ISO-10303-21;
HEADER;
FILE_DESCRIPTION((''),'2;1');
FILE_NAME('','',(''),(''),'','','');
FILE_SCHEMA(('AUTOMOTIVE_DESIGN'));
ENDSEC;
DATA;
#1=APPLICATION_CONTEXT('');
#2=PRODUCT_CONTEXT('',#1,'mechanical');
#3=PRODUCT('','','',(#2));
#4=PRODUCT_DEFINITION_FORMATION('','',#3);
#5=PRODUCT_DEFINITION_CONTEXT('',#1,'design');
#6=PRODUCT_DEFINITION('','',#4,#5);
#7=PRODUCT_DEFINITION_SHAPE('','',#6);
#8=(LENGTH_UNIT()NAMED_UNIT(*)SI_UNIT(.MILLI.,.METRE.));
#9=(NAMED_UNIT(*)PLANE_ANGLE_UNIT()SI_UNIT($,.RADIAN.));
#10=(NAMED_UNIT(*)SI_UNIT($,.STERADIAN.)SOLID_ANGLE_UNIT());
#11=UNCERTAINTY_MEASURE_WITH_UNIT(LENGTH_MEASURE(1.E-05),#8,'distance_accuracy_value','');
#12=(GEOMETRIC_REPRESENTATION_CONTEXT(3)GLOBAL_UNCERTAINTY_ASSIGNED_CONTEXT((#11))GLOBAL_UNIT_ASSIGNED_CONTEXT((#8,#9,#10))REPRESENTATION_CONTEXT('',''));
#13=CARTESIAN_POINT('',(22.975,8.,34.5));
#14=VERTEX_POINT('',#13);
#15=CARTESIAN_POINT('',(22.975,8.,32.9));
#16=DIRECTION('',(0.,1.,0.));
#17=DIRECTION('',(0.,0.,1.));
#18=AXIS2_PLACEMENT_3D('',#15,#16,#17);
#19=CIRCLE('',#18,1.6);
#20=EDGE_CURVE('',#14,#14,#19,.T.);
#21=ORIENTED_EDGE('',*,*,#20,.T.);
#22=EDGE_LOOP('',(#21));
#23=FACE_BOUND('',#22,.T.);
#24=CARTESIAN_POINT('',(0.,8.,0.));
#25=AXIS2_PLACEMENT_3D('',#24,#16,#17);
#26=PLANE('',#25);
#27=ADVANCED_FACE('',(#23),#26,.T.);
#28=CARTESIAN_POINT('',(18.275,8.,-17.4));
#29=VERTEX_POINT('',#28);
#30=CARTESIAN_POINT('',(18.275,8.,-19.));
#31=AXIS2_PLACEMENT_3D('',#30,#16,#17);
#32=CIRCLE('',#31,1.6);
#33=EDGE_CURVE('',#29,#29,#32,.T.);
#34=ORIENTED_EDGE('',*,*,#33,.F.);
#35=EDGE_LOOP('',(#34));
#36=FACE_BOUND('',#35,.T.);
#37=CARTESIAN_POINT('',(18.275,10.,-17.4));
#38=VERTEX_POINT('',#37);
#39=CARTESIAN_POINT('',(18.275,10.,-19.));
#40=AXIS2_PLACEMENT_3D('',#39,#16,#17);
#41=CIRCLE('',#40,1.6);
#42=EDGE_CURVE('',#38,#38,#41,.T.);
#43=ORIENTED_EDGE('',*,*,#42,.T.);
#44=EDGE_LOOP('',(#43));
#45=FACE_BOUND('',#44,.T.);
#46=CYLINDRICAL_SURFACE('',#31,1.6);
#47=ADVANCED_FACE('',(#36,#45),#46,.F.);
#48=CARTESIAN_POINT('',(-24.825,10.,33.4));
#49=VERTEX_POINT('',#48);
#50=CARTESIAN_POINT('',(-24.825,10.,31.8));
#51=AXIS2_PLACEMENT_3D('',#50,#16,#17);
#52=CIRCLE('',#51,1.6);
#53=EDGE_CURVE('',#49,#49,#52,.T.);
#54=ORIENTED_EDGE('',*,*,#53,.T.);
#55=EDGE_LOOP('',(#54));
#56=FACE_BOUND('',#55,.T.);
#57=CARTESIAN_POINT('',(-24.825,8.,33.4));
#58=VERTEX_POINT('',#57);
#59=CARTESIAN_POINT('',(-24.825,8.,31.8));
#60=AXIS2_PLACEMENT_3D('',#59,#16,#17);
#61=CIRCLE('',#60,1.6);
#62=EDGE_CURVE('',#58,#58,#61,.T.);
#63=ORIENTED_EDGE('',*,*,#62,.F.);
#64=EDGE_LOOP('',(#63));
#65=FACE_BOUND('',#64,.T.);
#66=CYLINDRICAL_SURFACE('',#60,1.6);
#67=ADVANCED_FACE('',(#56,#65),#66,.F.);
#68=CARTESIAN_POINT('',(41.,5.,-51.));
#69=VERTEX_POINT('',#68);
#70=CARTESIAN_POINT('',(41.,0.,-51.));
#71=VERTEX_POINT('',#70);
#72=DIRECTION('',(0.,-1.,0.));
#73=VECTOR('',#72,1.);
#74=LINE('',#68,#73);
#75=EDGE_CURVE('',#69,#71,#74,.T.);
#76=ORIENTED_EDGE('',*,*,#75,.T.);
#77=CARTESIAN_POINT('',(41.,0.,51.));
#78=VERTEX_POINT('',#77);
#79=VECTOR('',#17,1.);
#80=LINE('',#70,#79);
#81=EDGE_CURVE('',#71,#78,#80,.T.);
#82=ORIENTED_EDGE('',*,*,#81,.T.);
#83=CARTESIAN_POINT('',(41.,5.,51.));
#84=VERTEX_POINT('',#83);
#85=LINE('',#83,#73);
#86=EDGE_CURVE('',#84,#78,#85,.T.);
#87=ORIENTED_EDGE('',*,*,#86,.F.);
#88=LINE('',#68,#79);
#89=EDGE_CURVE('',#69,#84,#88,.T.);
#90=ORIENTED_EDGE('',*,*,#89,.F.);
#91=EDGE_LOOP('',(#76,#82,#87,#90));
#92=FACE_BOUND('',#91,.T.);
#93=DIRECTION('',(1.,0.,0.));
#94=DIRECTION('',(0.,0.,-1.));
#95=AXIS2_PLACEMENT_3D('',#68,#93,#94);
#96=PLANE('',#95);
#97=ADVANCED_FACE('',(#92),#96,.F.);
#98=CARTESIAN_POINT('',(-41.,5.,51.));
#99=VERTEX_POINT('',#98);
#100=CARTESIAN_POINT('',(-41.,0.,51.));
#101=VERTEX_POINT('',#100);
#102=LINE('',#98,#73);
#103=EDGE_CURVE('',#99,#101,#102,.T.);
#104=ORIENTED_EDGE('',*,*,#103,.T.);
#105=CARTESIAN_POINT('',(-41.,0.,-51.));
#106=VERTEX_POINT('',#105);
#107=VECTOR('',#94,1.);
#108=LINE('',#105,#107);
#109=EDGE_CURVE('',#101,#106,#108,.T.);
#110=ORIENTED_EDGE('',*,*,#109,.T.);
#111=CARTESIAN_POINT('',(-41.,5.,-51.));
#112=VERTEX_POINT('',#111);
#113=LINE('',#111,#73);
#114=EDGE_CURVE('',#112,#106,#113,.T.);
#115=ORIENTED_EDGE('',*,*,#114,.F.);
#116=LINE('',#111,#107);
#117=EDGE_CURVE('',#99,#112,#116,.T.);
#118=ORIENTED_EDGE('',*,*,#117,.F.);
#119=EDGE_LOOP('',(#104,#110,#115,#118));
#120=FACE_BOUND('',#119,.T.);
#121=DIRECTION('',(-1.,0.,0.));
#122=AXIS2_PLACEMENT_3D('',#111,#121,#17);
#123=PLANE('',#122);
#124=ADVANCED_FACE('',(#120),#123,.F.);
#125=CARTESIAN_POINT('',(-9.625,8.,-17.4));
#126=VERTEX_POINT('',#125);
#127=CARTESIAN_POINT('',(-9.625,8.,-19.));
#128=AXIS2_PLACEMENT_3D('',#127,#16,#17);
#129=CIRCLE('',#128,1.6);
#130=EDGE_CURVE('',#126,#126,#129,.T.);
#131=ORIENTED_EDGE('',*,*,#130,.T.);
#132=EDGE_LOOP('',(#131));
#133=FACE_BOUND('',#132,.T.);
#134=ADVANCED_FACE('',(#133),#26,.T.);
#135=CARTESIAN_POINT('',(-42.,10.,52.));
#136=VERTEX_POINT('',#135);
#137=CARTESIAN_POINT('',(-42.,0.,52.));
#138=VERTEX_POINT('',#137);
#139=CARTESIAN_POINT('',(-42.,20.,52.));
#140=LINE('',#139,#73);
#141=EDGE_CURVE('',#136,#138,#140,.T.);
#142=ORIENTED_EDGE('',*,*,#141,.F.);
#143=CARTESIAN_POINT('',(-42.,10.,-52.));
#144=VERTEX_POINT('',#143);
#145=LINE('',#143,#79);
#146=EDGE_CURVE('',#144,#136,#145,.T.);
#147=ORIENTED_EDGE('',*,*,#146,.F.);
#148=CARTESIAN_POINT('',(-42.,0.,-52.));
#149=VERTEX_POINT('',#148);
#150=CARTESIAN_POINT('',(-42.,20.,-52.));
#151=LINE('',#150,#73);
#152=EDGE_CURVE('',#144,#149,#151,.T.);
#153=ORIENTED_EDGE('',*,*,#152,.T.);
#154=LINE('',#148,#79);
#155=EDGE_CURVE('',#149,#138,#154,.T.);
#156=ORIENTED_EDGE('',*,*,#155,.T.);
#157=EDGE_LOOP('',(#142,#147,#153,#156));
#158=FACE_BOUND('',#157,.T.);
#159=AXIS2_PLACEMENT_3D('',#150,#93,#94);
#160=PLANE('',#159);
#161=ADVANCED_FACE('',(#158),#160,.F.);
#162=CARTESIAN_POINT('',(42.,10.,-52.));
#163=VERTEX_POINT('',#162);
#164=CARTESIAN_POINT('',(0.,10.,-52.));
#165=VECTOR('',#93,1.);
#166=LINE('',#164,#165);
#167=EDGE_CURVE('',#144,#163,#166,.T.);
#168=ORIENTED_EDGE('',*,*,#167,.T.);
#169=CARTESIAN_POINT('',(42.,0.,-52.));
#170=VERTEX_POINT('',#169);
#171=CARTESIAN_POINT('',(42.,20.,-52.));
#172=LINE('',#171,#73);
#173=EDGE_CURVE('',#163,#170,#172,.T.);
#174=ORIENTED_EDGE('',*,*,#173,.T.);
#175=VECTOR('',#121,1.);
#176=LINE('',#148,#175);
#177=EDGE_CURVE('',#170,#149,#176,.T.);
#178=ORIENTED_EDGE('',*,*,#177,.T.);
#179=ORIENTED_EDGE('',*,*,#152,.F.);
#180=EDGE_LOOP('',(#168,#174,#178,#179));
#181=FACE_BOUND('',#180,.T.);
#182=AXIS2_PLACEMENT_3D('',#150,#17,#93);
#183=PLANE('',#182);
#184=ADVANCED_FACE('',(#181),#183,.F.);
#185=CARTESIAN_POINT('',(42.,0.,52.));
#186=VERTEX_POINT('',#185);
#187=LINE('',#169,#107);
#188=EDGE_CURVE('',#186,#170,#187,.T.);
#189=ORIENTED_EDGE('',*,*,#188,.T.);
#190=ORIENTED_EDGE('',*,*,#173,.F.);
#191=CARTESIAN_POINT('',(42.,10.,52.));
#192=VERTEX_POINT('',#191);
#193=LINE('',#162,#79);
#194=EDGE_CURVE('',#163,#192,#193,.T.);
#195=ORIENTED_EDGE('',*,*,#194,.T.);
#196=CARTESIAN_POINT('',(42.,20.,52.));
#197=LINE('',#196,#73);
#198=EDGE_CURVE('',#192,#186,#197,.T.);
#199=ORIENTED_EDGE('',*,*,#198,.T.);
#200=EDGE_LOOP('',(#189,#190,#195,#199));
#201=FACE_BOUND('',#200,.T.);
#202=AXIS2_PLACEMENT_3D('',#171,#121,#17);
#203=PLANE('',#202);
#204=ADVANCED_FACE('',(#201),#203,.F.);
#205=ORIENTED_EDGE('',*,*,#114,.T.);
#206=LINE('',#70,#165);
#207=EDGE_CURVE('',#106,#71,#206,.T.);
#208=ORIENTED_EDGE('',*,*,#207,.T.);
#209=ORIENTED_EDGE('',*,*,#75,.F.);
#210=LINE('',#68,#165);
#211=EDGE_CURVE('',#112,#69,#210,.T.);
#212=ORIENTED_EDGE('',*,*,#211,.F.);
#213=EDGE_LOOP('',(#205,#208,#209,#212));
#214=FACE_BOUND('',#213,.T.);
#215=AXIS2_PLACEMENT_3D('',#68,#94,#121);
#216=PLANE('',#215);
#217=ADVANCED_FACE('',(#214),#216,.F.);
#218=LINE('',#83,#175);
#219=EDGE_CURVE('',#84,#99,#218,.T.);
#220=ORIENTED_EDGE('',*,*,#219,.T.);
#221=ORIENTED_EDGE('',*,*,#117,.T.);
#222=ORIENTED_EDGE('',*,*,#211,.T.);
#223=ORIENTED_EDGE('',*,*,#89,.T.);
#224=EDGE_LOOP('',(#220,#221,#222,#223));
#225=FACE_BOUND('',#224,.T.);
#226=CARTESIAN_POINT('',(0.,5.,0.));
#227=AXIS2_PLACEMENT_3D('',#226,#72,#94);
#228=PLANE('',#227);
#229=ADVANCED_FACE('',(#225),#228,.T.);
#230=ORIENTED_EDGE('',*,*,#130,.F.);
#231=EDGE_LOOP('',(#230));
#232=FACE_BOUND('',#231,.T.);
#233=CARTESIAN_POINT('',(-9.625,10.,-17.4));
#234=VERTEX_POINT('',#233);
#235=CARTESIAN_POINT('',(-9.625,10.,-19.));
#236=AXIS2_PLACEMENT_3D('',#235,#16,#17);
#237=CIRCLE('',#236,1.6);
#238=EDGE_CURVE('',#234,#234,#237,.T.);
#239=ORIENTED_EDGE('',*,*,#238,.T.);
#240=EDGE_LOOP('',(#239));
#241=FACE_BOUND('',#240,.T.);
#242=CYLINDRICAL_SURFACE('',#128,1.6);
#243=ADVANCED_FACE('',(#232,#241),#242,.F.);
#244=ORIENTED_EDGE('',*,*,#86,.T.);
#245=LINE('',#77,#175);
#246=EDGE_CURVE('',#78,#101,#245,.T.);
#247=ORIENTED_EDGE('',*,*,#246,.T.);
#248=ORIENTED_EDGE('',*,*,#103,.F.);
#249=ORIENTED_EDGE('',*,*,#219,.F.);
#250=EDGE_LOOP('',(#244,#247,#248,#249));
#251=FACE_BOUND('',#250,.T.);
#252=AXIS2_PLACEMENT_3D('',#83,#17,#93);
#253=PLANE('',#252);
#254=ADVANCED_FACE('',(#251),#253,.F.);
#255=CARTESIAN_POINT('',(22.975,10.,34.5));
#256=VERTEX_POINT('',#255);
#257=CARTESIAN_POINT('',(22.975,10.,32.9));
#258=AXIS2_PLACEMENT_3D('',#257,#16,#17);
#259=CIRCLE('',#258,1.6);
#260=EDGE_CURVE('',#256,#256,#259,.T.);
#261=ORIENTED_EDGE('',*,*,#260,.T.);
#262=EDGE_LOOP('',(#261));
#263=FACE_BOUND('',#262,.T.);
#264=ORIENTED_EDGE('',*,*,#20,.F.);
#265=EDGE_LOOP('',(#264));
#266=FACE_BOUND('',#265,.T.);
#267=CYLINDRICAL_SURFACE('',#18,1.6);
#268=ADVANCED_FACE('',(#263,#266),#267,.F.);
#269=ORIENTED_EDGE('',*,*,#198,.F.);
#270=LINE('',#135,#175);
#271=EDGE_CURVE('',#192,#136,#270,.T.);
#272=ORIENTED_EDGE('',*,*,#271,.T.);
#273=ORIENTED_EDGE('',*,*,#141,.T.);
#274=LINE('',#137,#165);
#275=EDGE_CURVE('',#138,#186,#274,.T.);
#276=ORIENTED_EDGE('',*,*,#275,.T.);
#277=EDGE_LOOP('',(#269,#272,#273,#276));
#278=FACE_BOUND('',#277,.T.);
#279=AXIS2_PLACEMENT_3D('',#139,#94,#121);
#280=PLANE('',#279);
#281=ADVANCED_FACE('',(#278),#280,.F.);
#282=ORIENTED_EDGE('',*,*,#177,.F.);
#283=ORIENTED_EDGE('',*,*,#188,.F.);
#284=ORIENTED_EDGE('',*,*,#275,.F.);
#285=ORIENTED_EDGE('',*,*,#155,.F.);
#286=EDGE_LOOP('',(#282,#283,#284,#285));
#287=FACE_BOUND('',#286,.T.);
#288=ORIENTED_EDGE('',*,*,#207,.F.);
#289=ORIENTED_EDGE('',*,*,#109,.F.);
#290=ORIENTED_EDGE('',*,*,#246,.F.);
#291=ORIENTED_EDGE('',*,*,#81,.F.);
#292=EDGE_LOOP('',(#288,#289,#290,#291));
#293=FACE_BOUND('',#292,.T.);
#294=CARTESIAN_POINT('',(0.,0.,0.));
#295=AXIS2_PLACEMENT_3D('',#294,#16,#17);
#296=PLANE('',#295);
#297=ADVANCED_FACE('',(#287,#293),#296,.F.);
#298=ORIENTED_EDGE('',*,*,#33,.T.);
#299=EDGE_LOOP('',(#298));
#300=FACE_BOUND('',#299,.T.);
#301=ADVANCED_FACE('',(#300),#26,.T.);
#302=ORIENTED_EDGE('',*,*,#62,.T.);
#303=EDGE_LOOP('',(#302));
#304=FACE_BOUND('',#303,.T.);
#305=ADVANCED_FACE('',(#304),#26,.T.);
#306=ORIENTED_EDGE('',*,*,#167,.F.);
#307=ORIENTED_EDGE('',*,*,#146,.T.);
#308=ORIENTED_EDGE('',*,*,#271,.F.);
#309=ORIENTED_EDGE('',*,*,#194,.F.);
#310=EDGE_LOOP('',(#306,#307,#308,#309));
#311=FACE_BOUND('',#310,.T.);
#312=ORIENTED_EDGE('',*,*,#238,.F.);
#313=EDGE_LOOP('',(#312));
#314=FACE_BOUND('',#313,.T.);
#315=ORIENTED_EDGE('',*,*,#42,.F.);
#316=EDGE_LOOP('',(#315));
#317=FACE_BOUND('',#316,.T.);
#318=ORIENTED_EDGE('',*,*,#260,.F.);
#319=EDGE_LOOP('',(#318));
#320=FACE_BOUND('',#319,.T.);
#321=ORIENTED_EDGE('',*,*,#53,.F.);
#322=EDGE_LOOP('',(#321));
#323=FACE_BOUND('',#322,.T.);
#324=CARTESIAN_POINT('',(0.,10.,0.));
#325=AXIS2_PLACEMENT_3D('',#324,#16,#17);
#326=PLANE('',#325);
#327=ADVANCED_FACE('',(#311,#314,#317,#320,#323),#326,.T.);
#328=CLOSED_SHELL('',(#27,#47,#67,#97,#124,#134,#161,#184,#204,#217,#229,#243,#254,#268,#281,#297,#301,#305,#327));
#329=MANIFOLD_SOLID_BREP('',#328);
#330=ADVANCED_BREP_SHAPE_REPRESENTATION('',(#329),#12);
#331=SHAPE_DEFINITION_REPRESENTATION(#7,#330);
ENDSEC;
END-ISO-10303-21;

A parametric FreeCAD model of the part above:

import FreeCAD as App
import Part
import Sketcher
Q = App.Units.Quantity


def add_polygon(sketch, points):
    """Adds a closed chain of lines whose ends are joined by coincident constraints."""
    first, n = sketch.GeometryCount, len(points)
    for a, b in zip(points, points[1:] + points[:1]):
        sketch.addGeometry(Part.LineSegment(App.Vector(*a, 0), App.Vector(*b, 0)), False)
    for i in range(n):
        sketch.addConstraint(Sketcher.Constraint("Coincident", first + i, 2, first + (i + 1) % n, 1))

doc = App.newDocument("Part")
body = doc.addObject("PartDesign::Body", "Body")

sketch1 = body.newObject("Sketcher::SketchObject", "Sketch")
sketch1.AttachmentSupport = (doc.getObject("XZ_Plane"), [""])
sketch1.MapMode = "FlatFace"
add_polygon(sketch1, [(-42, -52), (-42, 52), (42, 52), (42, -52)])
sketch1.addConstraint(Sketcher.Constraint("Vertical", 0))
sketch1.addConstraint(Sketcher.Constraint("Horizontal", 1))
sketch1.addConstraint(Sketcher.Constraint("Vertical", 2))
sketch1.addConstraint(Sketcher.Constraint("Horizontal", 3))
sketch1.addConstraint(Sketcher.Constraint("Symmetric", 0, 2, 2, 2, -1, 1))
sketch1.addConstraint(Sketcher.Constraint("DistanceX", 1, 1, 1, 2, Q("84 mm")))
sketch1.addConstraint(Sketcher.Constraint("DistanceY", 0, 1, 0, 2, Q("104 mm")))
pad1 = body.newObject("PartDesign::Pad", "Pad")
pad1.Profile = sketch1
pad1.Length = 20
pad1.Reversed = True

sketch2 = body.newObject("Sketcher::SketchObject", "Sketch001")
sketch2.AttachmentSupport = (doc.getObject("XZ_Plane"), [""])
sketch2.MapMode = "FlatFace"
add_polygon(sketch2, [(41, -51), (41, 51), (-41, 51), (-41, -51)])
sketch2.addConstraint(Sketcher.Constraint("Vertical", 0))
sketch2.addConstraint(Sketcher.Constraint("Horizontal", 1))
sketch2.addConstraint(Sketcher.Constraint("Vertical", 2))
sketch2.addConstraint(Sketcher.Constraint("Horizontal", 3))
sketch2.addConstraint(Sketcher.Constraint("Symmetric", 0, 2, 2, 2, -1, 1))
sketch2.addConstraint(Sketcher.Constraint("DistanceX", 1, 2, 1, 1, Q("82 mm")))
sketch2.addConstraint(Sketcher.Constraint("DistanceY", 0, 1, 0, 2, Q("102 mm")))
pocket1 = body.newObject("PartDesign::Pocket", "Pocket")
pocket1.Profile = sketch2
pocket1.Length = 5

sketch3 = body.newObject("Sketcher::SketchObject", "Sketch002")
sketch3.AttachmentSupport = (doc.getObject("XZ_Plane"), [""])
sketch3.MapMode = "FlatFace"
sketch3.AttachmentOffset = App.Placement(App.Vector(0, 0, -20), App.Rotation())
add_polygon(sketch3, [(-37, -47), (-37, 47), (37, 47), (37, -47)])
sketch3.addConstraint(Sketcher.Constraint("Vertical", 0))
sketch3.addConstraint(Sketcher.Constraint("Horizontal", 1))
sketch3.addConstraint(Sketcher.Constraint("Vertical", 2))
sketch3.addConstraint(Sketcher.Constraint("Horizontal", 3))
sketch3.addConstraint(Sketcher.Constraint("Symmetric", 0, 2, 2, 2, -1, 1))
sketch3.addConstraint(Sketcher.Constraint("DistanceX", 1, 1, 1, 2, Q("74 mm")))
sketch3.addConstraint(Sketcher.Constraint("DistanceY", 0, 1, 0, 2, Q("94 mm")))
pocket2 = body.newObject("PartDesign::Pocket", "Pocket001")
pocket2.Profile = sketch3
pocket2.Length = 10
pocket2.Reversed = True

sketch4 = body.newObject("Sketcher::SketchObject", "Sketch003")
sketch4.AttachmentSupport = (doc.getObject("XY_Plane"), [""])
sketch4.MapMode = "FlatFace"
sketch4.AttachmentOffset = App.Placement(App.Vector(0, 0, -47), App.Rotation())
add_polygon(sketch4, [(-19, 20), (-19, 10), (19, 10), (19, 20)])
sketch4.addConstraint(Sketcher.Constraint("Vertical", 0))
sketch4.addConstraint(Sketcher.Constraint("Horizontal", 1))
sketch4.addConstraint(Sketcher.Constraint("Vertical", 2))
sketch4.addConstraint(Sketcher.Constraint("Horizontal", 3))
sketch4.addConstraint(Sketcher.Constraint("DistanceY", 0, 2, 0, 1, Q("10 mm")))
sketch4.addConstraint(Sketcher.Constraint("DistanceY", -1, 1, 0, 2, Q("10 mm")))
sketch4.addConstraint(Sketcher.Constraint("DistanceX", 1, 1, 1, 2, Q("37.72 mm")))
sketch4.addConstraint(Sketcher.Constraint("DistanceX", 0, 2, -1, 1, Q("18.86 mm")))
pocket3 = body.newObject("PartDesign::Pocket", "Pocket002")
pocket3.Profile = sketch4
pocket3.Type = "ThroughAll"

sketch5 = body.newObject("Sketcher::SketchObject", "Sketch004")
sketch5.AttachmentSupport = (doc.getObject("XY_Plane"), [""])
sketch5.MapMode = "FlatFace"
sketch5.AttachmentOffset = App.Placement(App.Vector(0, 0, 47), App.Rotation())
add_polygon(sketch5, [(-4, 20), (-4, 10), (-19, 10), (-19, 20)])
add_polygon(sketch5, [(22, 20), (22, 10), (12, 10), (12, 20)])
sketch5.addConstraint(Sketcher.Constraint("Vertical", 0))
sketch5.addConstraint(Sketcher.Constraint("Horizontal", 1))
sketch5.addConstraint(Sketcher.Constraint("Vertical", 2))
sketch5.addConstraint(Sketcher.Constraint("Horizontal", 3))
sketch5.addConstraint(Sketcher.Constraint("Vertical", 4))
sketch5.addConstraint(Sketcher.Constraint("Horizontal", 5))
sketch5.addConstraint(Sketcher.Constraint("Vertical", 6))
sketch5.addConstraint(Sketcher.Constraint("Horizontal", 7))
sketch5.addConstraint(Sketcher.Constraint("Horizontal", 1, 2, 4, 2))
sketch5.addConstraint(Sketcher.Constraint("Horizontal", 3, 2, 6, 2))
sketch5.addConstraint(Sketcher.Constraint("Equal", 7, 0))
sketch5.addConstraint(Sketcher.Constraint("DistanceX", 1, 2, 1, 1, Q("15 mm")))
sketch5.addConstraint(Sketcher.Constraint("DistanceX", 5, 2, 5, 1, Q("10 mm")))
sketch5.addConstraint(Sketcher.Constraint("DistanceY", -1, 1, 0, 2, Q("10 mm")))
sketch5.addConstraint(Sketcher.Constraint("DistanceX", 0, 2, 4, 2, Q("26 mm")))
sketch5.addConstraint(Sketcher.Constraint("DistanceX", 0, 2, -1, 1, Q("3.65 mm")))
pocket4 = body.newObject("PartDesign::Pocket", "Pocket003")
pocket4.Profile = sketch5
pocket4.Length = 10
pocket4.Reversed = True

sketch6 = body.newObject("Sketcher::SketchObject", "Sketch005")
sketch6.AttachmentSupport = (doc.getObject("XZ_Plane"), [""])
sketch6.MapMode = "FlatFace"
sketch6.AttachmentOffset = App.Placement(App.Vector(0, 0, -10), App.Rotation())
sketch6.addGeometry(Part.Circle(App.Vector(18.3, -19, 0), App.Vector(0, 0, 1), 1.6), False)
sketch6.addGeometry(Part.Circle(App.Vector(-24.8, 31.8, 0), App.Vector(0, 0, 1), 1.6), False)
sketch6.addGeometry(Part.Circle(App.Vector(23, 32.9, 0), App.Vector(0, 0, 1), 1.6), False)
sketch6.addGeometry(Part.Circle(App.Vector(-9.6, -19, 0), App.Vector(0, 0, 1), 1.6), False)
sketch6.addConstraint(Sketcher.Constraint("Equal", 0, 1))
sketch6.addConstraint(Sketcher.Constraint("Equal", 1, 2))
sketch6.addConstraint(Sketcher.Constraint("Equal", 2, 3))
sketch6.addConstraint(Sketcher.Constraint("Horizontal", 0, 3, 3, 3))
sketch6.addConstraint(Sketcher.Constraint("Diameter", 0, Q("3.2 mm")))
sketch6.addConstraint(Sketcher.Constraint("DistanceY", 0, 3, -1, 1, Q("19 mm")))
sketch6.addConstraint(Sketcher.Constraint("DistanceY", -1, 1, 1, 3, Q("31.8 mm")))
sketch6.addConstraint(Sketcher.Constraint("DistanceY", -1, 1, 2, 3, Q("32.9 mm")))
sketch6.addConstraint(Sketcher.Constraint("DistanceX", 1, 3, 0, 3, Q("43.1 mm")))
sketch6.addConstraint(Sketcher.Constraint("DistanceX", 1, 3, 2, 3, Q("47.8 mm")))
sketch6.addConstraint(Sketcher.Constraint("DistanceX", 3, 3, 0, 3, Q("27.9 mm")))
sketch6.addConstraint(Sketcher.Constraint("DistanceX", -1, 1, 0, 3, Q("18.275 mm")))
pocket5 = body.newObject("PartDesign::Pocket", "Pocket004")
pocket5.Profile = sketch6
pocket5.Length = 2
pocket5.Reversed = True

sketch7 = body.newObject("Sketcher::SketchObject", "Sketch006")
sketch7.AttachmentSupport = (doc.getObject("YZ_Plane"), [""])
sketch7.MapMode = "FlatFace"
sketch7.AttachmentOffset = App.Placement(App.Vector(0, 0, -42), App.Rotation())
add_polygon(sketch7, [(20, -52), (10, -52), (10, 52), (20, 52)])
sketch7.addConstraint(Sketcher.Constraint("Horizontal", 0))
sketch7.addConstraint(Sketcher.Constraint("Vertical", 1))
sketch7.addConstraint(Sketcher.Constraint("Horizontal", 2))
sketch7.addConstraint(Sketcher.Constraint("Vertical", 3))
sketch7.addConstraint(Sketcher.Constraint("DistanceX", 0, 2, 0, 1, Q("10 mm")))
sketch7.addConstraint(Sketcher.Constraint("DistanceY", 1, 1, 1, 2, Q("104 mm")))
sketch7.addConstraint(Sketcher.Constraint("DistanceX", -1, 1, 0, 2, Q("10 mm")))
sketch7.addConstraint(Sketcher.Constraint("DistanceY", 0, 2, -1, 1, Q("52 mm")))
pocket6 = body.newObject("PartDesign::Pocket", "Pocket005")
pocket6.Profile = sketch7
pocket6.Type = "ThroughAll"
pocket6.Reversed = True

doc.recompute()
